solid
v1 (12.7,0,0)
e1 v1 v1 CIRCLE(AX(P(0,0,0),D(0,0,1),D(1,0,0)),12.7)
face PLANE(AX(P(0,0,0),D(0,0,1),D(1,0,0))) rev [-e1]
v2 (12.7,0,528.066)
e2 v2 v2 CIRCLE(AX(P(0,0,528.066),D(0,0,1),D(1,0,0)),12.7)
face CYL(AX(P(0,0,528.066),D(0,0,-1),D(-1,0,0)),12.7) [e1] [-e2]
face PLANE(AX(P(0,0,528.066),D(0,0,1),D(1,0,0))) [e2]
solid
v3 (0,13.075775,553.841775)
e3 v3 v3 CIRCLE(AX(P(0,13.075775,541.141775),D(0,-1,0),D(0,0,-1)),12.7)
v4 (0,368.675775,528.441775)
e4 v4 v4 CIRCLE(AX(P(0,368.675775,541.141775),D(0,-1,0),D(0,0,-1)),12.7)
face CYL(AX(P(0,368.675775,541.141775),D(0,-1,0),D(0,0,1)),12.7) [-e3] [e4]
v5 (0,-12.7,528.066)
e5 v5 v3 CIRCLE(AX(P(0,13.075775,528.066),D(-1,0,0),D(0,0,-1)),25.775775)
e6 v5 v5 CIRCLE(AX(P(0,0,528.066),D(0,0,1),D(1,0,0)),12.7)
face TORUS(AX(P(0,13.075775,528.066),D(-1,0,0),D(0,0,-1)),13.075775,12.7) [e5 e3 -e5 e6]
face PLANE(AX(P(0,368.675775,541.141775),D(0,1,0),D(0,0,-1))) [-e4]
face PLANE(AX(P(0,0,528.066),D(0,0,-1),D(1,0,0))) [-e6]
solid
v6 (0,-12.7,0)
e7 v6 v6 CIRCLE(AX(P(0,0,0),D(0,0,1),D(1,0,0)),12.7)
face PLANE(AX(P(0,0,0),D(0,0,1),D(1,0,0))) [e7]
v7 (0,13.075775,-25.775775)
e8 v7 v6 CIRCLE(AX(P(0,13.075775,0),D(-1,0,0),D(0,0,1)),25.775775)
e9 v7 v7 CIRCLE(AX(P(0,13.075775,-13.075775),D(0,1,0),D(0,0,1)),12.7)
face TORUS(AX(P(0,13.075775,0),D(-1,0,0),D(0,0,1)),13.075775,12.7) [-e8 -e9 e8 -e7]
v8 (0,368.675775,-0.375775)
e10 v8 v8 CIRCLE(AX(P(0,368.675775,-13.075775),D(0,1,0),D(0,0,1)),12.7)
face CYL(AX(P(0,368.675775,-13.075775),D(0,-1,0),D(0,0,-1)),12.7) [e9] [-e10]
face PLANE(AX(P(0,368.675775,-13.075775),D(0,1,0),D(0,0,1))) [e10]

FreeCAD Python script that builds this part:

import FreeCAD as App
import Part
import Sketcher

V = App.Vector
Q = App.Units.Quantity

doc = App.newDocument("Part")
params = doc.addObject("Spreadsheet::Sheet", "Params")
for row, (alias, value) in enumerate([
    ("sketch1_diameter", "1 in"),
    ("pad1_length", "20.79 in"),
    ("sketch2_diameter", "1 in"),
    ("revolution_angle", "90 deg"),
    ("sketch3_diameter", "1 in"),
    ("pad2_length", "14 in"),
], start=1):
    params.set(f"A{row}", alias)
    params.set(f"B{row}", "=" + value)
    params.setAlias(f"B{row}", alias)

body = doc.addObject("PartDesign::Body", "Body")

sketch1 = doc.addObject("Sketcher::SketchObject", "Sketch")
body.addObject(sketch1)
sketch1.AttachmentSupport = (doc.XY_Plane, [""])
sketch1.MapMode = "FlatFace"
sketch1.addGeometry(Part.Circle(V(0, 0, 0), V(0, 0, 1), 12.7), False)
sketch1.addConstraint([
    Sketcher.Constraint("Coincident", 0, 3, -1, 1),
    Sketcher.Constraint("Diameter", 0, Q("1 in")),
])
sketch1.setExpression("Constraints[1]", "Params.sketch1_diameter")
pad1 = doc.addObject("PartDesign::Pad", "Pad")
body.addObject(pad1)
pad1.Profile = sketch1
pad1.setExpression("Length", "Params.pad1_length")
body2 = doc.addObject("PartDesign::Body", "Body001")

sketch2 = doc.addObject("Sketcher::SketchObject", "Sketch001")
body2.addObject(sketch2)
sketch2.AttachmentSupport = (doc.getObject("XY_Plane001"), [""])
sketch2.MapMode = "FlatFace"
sketch2.addGeometry(Part.Circle(V(0, 0, 0), V(0, 0, 1), 12.7), False)
sketch2.addGeometry(Part.LineSegment(V(0, 13.075775, 0), V(10, 13.075775, 0)), True)
sketch2.addConstraint([
    Sketcher.Constraint("Horizontal", 1),
    Sketcher.Constraint("Coincident", 0, 3, -1, 1),
    Sketcher.Constraint("PointOnObject", 1, 1, -2),
    Sketcher.Constraint("Diameter", 0, Q("1 in")),
    Sketcher.Constraint("DistanceX", 1, 1, 1, 2, 10.0),
    Sketcher.Constraint("DistanceY", -1, 1, 1, 1, 13.075775),
])
sketch2.setExpression("Constraints[3]", "Params.sketch2_diameter")
revolution = doc.addObject("PartDesign::Revolution", "Revolution")
body2.addObject(revolution)
revolution.Profile = sketch2
revolution.ReferenceAxis = (sketch2, ["Axis0"])
revolution.setExpression("Angle", "Params.revolution_angle")

sketch3 = doc.addObject("Sketcher::SketchObject", "Sketch002")
body2.addObject(sketch3)
sketch3.AttachmentSupport = (doc.getObject("XZ_Plane001"), [""])
sketch3.MapMode = "FlatFace"
sketch3.AttachmentOffset = App.Placement(V(0, 0, -13.075775), App.Rotation())
sketch3.addGeometry(Part.Circle(V(0, -13.075775, 0), V(0, 0, 1), 12.7), False)
sketch3.addConstraint([
    Sketcher.Constraint("PointOnObject", 0, 3, -2),
    Sketcher.Constraint("Diameter", 0, Q("1 in")),
    Sketcher.Constraint("DistanceY", 0, 3, -1, 1, 13.075775),
])
sketch3.setExpression("Constraints[1]", "Params.sketch3_diameter")
pad2 = doc.addObject("PartDesign::Pad", "Pad001")
body2.addObject(pad2)
pad2.Profile = sketch3
pad2.setExpression("Length", "Params.pad2_length")
pad2.Reversed = True
body3 = doc.addObject("PartDesign::Body", "Body002")
doc.recompute()

mirroring = doc.addObject("Part::Mirroring", "Mirroring")
mirroring.Source = body2
mirroring.Base = V(0, 0, 264.033)
mirroring.Normal = V(0, 0, 1)
body3.BaseFeature = mirroring
doc.recompute()
mirroring.Visibility = False

doc.recompute()
